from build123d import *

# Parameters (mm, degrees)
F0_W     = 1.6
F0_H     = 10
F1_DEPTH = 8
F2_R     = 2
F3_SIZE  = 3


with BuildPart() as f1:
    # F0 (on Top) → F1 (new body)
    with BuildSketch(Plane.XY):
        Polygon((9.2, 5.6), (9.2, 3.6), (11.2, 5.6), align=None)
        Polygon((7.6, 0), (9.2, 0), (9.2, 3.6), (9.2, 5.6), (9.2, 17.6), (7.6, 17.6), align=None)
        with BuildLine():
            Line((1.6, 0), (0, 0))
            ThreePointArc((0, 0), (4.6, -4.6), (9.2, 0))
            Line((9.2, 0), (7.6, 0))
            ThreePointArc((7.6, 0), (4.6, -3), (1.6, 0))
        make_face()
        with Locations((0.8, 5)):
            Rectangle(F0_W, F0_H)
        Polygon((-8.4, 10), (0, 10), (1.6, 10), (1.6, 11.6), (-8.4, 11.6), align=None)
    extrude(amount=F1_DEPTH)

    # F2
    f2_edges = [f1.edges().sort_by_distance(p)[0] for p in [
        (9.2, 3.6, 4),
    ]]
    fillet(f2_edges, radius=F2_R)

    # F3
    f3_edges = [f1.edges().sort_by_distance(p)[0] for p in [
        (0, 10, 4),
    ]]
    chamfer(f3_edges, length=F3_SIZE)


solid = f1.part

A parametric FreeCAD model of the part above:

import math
import FreeCAD as App
import Part
import Sketcher
from FreeCAD import Vector
Q = App.Units.Quantity


def edges_at(feature, points):
    """Names of the edges that pass closest to the given points."""
    edges = feature.Shape.Edges
    near = lambda p: min(range(len(edges)), key=lambda i: edges[i].distToShape(Part.Vertex(*p))[0])
    return sorted({f"Edge{near(p) + 1}" for p in points})

doc = App.newDocument("Part")
params = doc.addObject("Spreadsheet::Sheet", "Params")
for row, (alias, value) in enumerate([
    ("sketch1_radius", "3 mm"),
    ("sketch1_radius2", "4.6 mm"),
    ("sketch1_width", "2 mm"),
    ("sketch1_width2", "10 mm"),
    ("sketch1_height", "12 mm"),
    ("pad1_length", "8 mm"),
    ("fillet_radius", "2 mm"),
    ("chamfer_size", "3 mm"),
], start=1):
    params.set(f"A{row}", alias)
    params.set(f"B{row}", "=" + value)
    params.setAlias(f"B{row}", alias)

body = doc.addObject("PartDesign::Body", "Body")

# Sketch on XY plane
sketch1 = doc.addObject("Sketcher::SketchObject", "Sketch")
body.addObject(sketch1)
sketch1.AttachmentSupport = (doc.XY_Plane, [""])
sketch1.MapMode = "FlatFace"
sketch1.addGeometry([
    Part.LineSegment(Vector(9.2, 3.6, 0), Vector(11.2, 5.6, 0)),  # 0
    Part.LineSegment(Vector(11.2, 5.6, 0), Vector(9.2, 5.6, 0)),  # 1
    Part.LineSegment(Vector(9.2, 5.6, 0), Vector(9.2, 17.6, 0)),  # 2
    Part.LineSegment(Vector(9.2, 17.6, 0), Vector(7.6, 17.6, 0)),  # 3
    Part.LineSegment(Vector(7.6, 17.6, 0), Vector(7.6, 0, 0)),  # 4
    Part.ArcOfCircle(Part.Circle(Vector(4.6, 0, 0), Vector(0, 0, 1), 3), math.radians(180), math.radians(360)),  # 5
    Part.LineSegment(Vector(1.6, 0, 0), Vector(1.6, 11.6, 0)),  # 6
    Part.LineSegment(Vector(1.6, 11.6, 0), Vector(-8.4, 11.6, 0)),  # 7
    Part.LineSegment(Vector(-8.4, 11.6, 0), Vector(-8.4, 10, 0)),  # 8
    Part.LineSegment(Vector(-8.4, 10, 0), Vector(0, 10, 0)),  # 9
    Part.LineSegment(Vector(0, 10, 0), Vector(0, 0, 0)),  # 10
    Part.ArcOfCircle(Part.Circle(Vector(4.6, 0, 0), Vector(0, 0, 1), 4.6), math.radians(180), math.radians(360)),  # 11
    Part.LineSegment(Vector(9.2, 0, 0), Vector(9.2, 3.6, 0)),  # 12
], False)
sketch1.addConstraint([
    Sketcher.Constraint("Coincident", 0, 2, 1, 1),
    Sketcher.Constraint("Coincident", 1, 2, 2, 1),
    Sketcher.Constraint("Coincident", 2, 2, 3, 1),
    Sketcher.Constraint("Coincident", 3, 2, 4, 1),
    Sketcher.Constraint("Tangent", 4, 2, 5, 2),
    Sketcher.Constraint("Tangent", 5, 1, 6, 1),
    Sketcher.Constraint("Coincident", 6, 2, 7, 1),
    Sketcher.Constraint("Coincident", 7, 2, 8, 1),
    Sketcher.Constraint("Coincident", 8, 2, 9, 1),
    Sketcher.Constraint("Coincident", 9, 2, 10, 1),
    Sketcher.Constraint("Tangent", 10, 2, 11, 1),
    Sketcher.Constraint("Tangent", 11, 2, 12, 1),
    Sketcher.Constraint("Coincident", 12, 2, 0, 1),
    Sketcher.Constraint("Horizontal", 1),
    Sketcher.Constraint("Vertical", 2),
    Sketcher.Constraint("Horizontal", 3),
    Sketcher.Constraint("Vertical", 4),
    Sketcher.Constraint("Vertical", 6),
    Sketcher.Constraint("Horizontal", 7),
    Sketcher.Constraint("Vertical", 8),
    Sketcher.Constraint("Horizontal", 9),
    Sketcher.Constraint("Vertical", 10),
    Sketcher.Constraint("Vertical", 12),
    Sketcher.Constraint("Coincident", 10, 2, -1, 1),
    Sketcher.Constraint("Coincident", 11, 3, 5, 3),
    Sketcher.Constraint("Vertical", 2, 2, 11, 2),
    Sketcher.Constraint("Equal", 3, 8),
    Sketcher.Constraint("Equal", 7, 10),
    Sketcher.Constraint("Radius", 5, 3.0),
    Sketcher.Constraint("Radius", 11, 4.6),
    Sketcher.Constraint("DistanceX", 1, 2, 1, 1, 2.0),
    Sketcher.Constraint("DistanceX", 7, 2, 7, 1, 10.0),
    Sketcher.Constraint("DistanceY", 2, 1, 2, 2, 12.0),
    Sketcher.Constraint("Angle", 0, Q("45 deg")),
    Sketcher.Constraint("DistanceY", 4, 2, 4, 1, 17.6),
])
sketch1.setExpression("Constraints[28]", "Params.sketch1_radius")
sketch1.setExpression("Constraints[29]", "Params.sketch1_radius2")
sketch1.setExpression("Constraints[30]", "Params.sketch1_width")
sketch1.setExpression("Constraints[31]", "Params.sketch1_width2")
sketch1.setExpression("Constraints[32]", "Params.sketch1_height")
pad1 = doc.addObject("PartDesign::Pad", "Pad")
body.addObject(pad1)
pad1.Profile = sketch1
pad1.setExpression("Length", "Params.pad1_length")
doc.recompute()

fillet = doc.addObject("PartDesign::Fillet", "Fillet")
body.addObject(fillet)
fillet.Base = (pad1, edges_at(pad1, [(9.2, 3.6, 4)]))
fillet.setExpression("Radius", "Params.fillet_radius")
doc.recompute()

chamfer = doc.addObject("PartDesign::Chamfer", "Chamfer")
body.addObject(chamfer)
chamfer.Base = (fillet, edges_at(fillet, [(0, 10, 4)]))
chamfer.setExpression("Size", "Params.chamfer_size")

doc.recompute()
